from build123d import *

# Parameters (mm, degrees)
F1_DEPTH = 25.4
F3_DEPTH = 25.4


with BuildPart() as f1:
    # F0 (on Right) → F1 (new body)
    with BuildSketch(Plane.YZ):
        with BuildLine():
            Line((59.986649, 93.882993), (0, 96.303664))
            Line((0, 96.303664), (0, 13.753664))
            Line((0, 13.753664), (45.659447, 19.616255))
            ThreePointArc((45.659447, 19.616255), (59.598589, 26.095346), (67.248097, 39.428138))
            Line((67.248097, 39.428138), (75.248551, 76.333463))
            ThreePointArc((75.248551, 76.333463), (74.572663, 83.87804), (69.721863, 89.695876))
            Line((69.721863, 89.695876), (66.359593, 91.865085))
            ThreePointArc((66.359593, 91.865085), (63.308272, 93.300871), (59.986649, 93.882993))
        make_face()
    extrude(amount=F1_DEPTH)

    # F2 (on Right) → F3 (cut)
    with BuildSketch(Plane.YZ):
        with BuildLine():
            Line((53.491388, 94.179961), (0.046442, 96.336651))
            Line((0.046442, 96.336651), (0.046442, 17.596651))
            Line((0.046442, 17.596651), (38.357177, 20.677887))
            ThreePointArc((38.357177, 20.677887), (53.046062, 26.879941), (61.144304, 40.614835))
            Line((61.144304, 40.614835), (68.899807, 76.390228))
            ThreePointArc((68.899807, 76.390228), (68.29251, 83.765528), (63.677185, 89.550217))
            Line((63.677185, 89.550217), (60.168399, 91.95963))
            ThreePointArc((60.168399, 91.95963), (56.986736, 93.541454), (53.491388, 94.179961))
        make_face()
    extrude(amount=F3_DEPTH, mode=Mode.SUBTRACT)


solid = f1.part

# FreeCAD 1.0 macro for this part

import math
import FreeCAD as App
import Part
import Sketcher
from FreeCAD import Vector
Q = App.Units.Quantity

doc = App.newDocument("Part")
params = doc.addObject("Spreadsheet::Sheet", "Params")
for row, (alias, value) in enumerate([
    ("sketch1_radius", "0.9999999 in"),
    ("sketch1_radius2", "0.5 in"),
    ("sketch1_height", "3.25 in"),
    ("pad1_length", "1 in"),
    ("sketch2_radius", "1 in"),
    ("sketch2_radius2", "0.5 in"),
    ("sketch2_height", "3.1 in"),
    ("pocket1_length", "1 in"),
], start=1):
    params.set(f"A{row}", alias)
    params.set(f"B{row}", "=" + value)
    params.setAlias(f"B{row}", alias)

body = doc.addObject("PartDesign::Body", "Body")

sketch1 = body.newObject("Sketcher::SketchObject", "Sketch")
sketch1.AttachmentSupport = (doc.getObject("YZ_Plane"), [""])
sketch1.MapMode = "FlatFace"
sketch1.addGeometry([
    Part.LineSegment(Vector(59.986649, 93.882993, 0), Vector(0, 96.303664, 0)),
    Part.LineSegment(Vector(0, 96.303664, 0), Vector(0, 13.753664, 0)),
    Part.LineSegment(Vector(0, 13.753664, 0), Vector(45.659447, 19.616255, 0)),
    Part.ArcOfCircle(Part.Circle(Vector(42.424689, 44.809434, 0), Vector(0, 0, 1), 25.399998), math.radians(-82.68336), math.radians(-12.231496)),
    Part.LineSegment(Vector(67.248097, 39.428138, 0), Vector(75.248551, 76.333463, 0)),
    Part.ArcOfCircle(Part.Circle(Vector(62.836848, 79.024112, 0), Vector(0, 0, 1), 12.699999), math.radians(-12.231503), math.radians(57.171434)),
    Part.LineSegment(Vector(69.721863, 89.695876, 0), Vector(66.359593, 91.865085, 0)),
    Part.ArcOfCircle(Part.Circle(Vector(59.474574, 81.193312, 0), Vector(0, 0, 1), 12.700009), math.radians(57.171443), math.radians(87.68916)),
], False)
sketch1.addConstraint([
    Sketcher.Constraint("Coincident", 0, 2, 1, 1),
    Sketcher.Constraint("Coincident", 1, 2, 2, 1),
    Sketcher.Constraint("Tangent", 2, 2, 3, 1),
    Sketcher.Constraint("Tangent", 3, 2, 4, 1),
    Sketcher.Constraint("Tangent", 4, 2, 5, 1),
    Sketcher.Constraint("Tangent", 5, 2, 6, 1),
    Sketcher.Constraint("Tangent", 6, 2, 7, 1),
    Sketcher.Constraint("Tangent", 7, 2, 0, 1),
    Sketcher.Constraint("Vertical", 1),
    Sketcher.Constraint("PointOnObject", 0, 2, -2),
    Sketcher.Constraint("Radius", 3, Q("0.9999999 in")),
    Sketcher.Constraint("Radius", 5, Q("0.5 in")),
    Sketcher.Constraint("DistanceY", 1, 2, 1, 1, Q("3.25 in")),
    Sketcher.Constraint("Radius", 7, 12.700009),
    Sketcher.Constraint("DistanceY", 5, 3, 7, 3, 2.1692),
    Sketcher.Constraint("DistanceX", 2, 2, 5, 3, 17.177401),
    Sketcher.Constraint("DistanceX", 7, 2, 5, 3, 2.850199),
    Sketcher.Constraint("Distance", 0, 60.03547),
    Sketcher.Constraint("Distance", 2, 46.034282),
    Sketcher.Constraint("Distance", 4, 37.762551),
    Sketcher.Constraint("DistanceY", -1, 1, 3, 2, 39.428138),
])
sketch1.setExpression("Constraints[10]", "Params.sketch1_radius")
sketch1.setExpression("Constraints[11]", "Params.sketch1_radius2")
sketch1.setExpression("Constraints[12]", "Params.sketch1_height")
pad1 = body.newObject("PartDesign::Pad", "Pad")
pad1.Profile = sketch1
pad1.setExpression("Length", "Params.pad1_length")

sketch2 = body.newObject("Sketcher::SketchObject", "Sketch001")
sketch2.AttachmentSupport = (doc.getObject("YZ_Plane"), [""])
sketch2.MapMode = "FlatFace"
sketch2.addGeometry([
    Part.LineSegment(Vector(53.491388, 94.179961, 0), Vector(0.046442, 96.336651, 0)),
    Part.LineSegment(Vector(0.046442, 96.336651, 0), Vector(0.046442, 17.596651, 0)),
    Part.LineSegment(Vector(0.046442, 17.596651, 0), Vector(38.357177, 20.677887, 0)),
    Part.ArcOfCircle(Part.Circle(Vector(36.320894, 45.996133, 0), Vector(0, 0, 1), 25.400001), math.radians(-85.401743), math.radians(-12.2315)),
    Part.LineSegment(Vector(61.144304, 40.614835, 0), Vector(68.899807, 76.390228, 0)),
    Part.ArcOfCircle(Part.Circle(Vector(56.488102, 79.080876, 0), Vector(0, 0, 1), 12.7), math.radians(-12.231497), math.radians(55.523407)),
    Part.LineSegment(Vector(63.677185, 89.550217, 0), Vector(60.168399, 91.95963, 0)),
    Part.ArcOfCircle(Part.Circle(Vector(52.979314, 81.490278, 0), Vector(0, 0, 1), 12.700011), math.radians(55.523429), math.radians(87.689164)),
], False)
sketch2.addConstraint([
    Sketcher.Constraint("Coincident", 0, 2, 1, 1),
    Sketcher.Constraint("Coincident", 1, 2, 2, 1),
    Sketcher.Constraint("Tangent", 2, 2, 3, 1),
    Sketcher.Constraint("Tangent", 3, 2, 4, 1),
    Sketcher.Constraint("Tangent", 4, 2, 5, 1),
    Sketcher.Constraint("Tangent", 5, 2, 6, 1),
    Sketcher.Constraint("Tangent", 6, 2, 7, 1),
    Sketcher.Constraint("Tangent", 7, 2, 0, 1),
    Sketcher.Constraint("Vertical", 1),
    Sketcher.Constraint("Radius", 3, Q("1 in")),
    Sketcher.Constraint("Radius", 5, Q("0.5 in")),
    Sketcher.Constraint("DistanceY", 1, 2, 1, 1, Q("3.1 in")),
    Sketcher.Constraint("Radius", 7, 12.700011),
    Sketcher.Constraint("DistanceX", -1, 1, 6, 2, 60.168399),
    Sketcher.Constraint("DistanceY", 5, 3, 7, 3, 2.409401),
    Sketcher.Constraint("DistanceY", 3, 2, 3, 3, 5.381298),
    Sketcher.Constraint("DistanceX", 5, 3, 3, 2, 4.656202),
    Sketcher.Constraint("Distance", 6, 4.256389),
    Sketcher.Constraint("DistanceX", -1, 1, 0, 2, 0.046442),
    Sketcher.Constraint("DistanceY", -1, 1, 0, 2, 96.336651),
    Sketcher.Constraint("DistanceY", -1, 1, 6, 2, 91.95963),
])
sketch2.setExpression("Constraints[9]", "Params.sketch2_radius")
sketch2.setExpression("Constraints[10]", "Params.sketch2_radius2")
sketch2.setExpression("Constraints[11]", "Params.sketch2_height")
pocket1 = body.newObject("PartDesign::Pocket", "Pocket")
pocket1.Profile = sketch2
pocket1.setExpression("Length", "Params.pocket1_length")
pocket1.Reversed = True

doc.recompute()
